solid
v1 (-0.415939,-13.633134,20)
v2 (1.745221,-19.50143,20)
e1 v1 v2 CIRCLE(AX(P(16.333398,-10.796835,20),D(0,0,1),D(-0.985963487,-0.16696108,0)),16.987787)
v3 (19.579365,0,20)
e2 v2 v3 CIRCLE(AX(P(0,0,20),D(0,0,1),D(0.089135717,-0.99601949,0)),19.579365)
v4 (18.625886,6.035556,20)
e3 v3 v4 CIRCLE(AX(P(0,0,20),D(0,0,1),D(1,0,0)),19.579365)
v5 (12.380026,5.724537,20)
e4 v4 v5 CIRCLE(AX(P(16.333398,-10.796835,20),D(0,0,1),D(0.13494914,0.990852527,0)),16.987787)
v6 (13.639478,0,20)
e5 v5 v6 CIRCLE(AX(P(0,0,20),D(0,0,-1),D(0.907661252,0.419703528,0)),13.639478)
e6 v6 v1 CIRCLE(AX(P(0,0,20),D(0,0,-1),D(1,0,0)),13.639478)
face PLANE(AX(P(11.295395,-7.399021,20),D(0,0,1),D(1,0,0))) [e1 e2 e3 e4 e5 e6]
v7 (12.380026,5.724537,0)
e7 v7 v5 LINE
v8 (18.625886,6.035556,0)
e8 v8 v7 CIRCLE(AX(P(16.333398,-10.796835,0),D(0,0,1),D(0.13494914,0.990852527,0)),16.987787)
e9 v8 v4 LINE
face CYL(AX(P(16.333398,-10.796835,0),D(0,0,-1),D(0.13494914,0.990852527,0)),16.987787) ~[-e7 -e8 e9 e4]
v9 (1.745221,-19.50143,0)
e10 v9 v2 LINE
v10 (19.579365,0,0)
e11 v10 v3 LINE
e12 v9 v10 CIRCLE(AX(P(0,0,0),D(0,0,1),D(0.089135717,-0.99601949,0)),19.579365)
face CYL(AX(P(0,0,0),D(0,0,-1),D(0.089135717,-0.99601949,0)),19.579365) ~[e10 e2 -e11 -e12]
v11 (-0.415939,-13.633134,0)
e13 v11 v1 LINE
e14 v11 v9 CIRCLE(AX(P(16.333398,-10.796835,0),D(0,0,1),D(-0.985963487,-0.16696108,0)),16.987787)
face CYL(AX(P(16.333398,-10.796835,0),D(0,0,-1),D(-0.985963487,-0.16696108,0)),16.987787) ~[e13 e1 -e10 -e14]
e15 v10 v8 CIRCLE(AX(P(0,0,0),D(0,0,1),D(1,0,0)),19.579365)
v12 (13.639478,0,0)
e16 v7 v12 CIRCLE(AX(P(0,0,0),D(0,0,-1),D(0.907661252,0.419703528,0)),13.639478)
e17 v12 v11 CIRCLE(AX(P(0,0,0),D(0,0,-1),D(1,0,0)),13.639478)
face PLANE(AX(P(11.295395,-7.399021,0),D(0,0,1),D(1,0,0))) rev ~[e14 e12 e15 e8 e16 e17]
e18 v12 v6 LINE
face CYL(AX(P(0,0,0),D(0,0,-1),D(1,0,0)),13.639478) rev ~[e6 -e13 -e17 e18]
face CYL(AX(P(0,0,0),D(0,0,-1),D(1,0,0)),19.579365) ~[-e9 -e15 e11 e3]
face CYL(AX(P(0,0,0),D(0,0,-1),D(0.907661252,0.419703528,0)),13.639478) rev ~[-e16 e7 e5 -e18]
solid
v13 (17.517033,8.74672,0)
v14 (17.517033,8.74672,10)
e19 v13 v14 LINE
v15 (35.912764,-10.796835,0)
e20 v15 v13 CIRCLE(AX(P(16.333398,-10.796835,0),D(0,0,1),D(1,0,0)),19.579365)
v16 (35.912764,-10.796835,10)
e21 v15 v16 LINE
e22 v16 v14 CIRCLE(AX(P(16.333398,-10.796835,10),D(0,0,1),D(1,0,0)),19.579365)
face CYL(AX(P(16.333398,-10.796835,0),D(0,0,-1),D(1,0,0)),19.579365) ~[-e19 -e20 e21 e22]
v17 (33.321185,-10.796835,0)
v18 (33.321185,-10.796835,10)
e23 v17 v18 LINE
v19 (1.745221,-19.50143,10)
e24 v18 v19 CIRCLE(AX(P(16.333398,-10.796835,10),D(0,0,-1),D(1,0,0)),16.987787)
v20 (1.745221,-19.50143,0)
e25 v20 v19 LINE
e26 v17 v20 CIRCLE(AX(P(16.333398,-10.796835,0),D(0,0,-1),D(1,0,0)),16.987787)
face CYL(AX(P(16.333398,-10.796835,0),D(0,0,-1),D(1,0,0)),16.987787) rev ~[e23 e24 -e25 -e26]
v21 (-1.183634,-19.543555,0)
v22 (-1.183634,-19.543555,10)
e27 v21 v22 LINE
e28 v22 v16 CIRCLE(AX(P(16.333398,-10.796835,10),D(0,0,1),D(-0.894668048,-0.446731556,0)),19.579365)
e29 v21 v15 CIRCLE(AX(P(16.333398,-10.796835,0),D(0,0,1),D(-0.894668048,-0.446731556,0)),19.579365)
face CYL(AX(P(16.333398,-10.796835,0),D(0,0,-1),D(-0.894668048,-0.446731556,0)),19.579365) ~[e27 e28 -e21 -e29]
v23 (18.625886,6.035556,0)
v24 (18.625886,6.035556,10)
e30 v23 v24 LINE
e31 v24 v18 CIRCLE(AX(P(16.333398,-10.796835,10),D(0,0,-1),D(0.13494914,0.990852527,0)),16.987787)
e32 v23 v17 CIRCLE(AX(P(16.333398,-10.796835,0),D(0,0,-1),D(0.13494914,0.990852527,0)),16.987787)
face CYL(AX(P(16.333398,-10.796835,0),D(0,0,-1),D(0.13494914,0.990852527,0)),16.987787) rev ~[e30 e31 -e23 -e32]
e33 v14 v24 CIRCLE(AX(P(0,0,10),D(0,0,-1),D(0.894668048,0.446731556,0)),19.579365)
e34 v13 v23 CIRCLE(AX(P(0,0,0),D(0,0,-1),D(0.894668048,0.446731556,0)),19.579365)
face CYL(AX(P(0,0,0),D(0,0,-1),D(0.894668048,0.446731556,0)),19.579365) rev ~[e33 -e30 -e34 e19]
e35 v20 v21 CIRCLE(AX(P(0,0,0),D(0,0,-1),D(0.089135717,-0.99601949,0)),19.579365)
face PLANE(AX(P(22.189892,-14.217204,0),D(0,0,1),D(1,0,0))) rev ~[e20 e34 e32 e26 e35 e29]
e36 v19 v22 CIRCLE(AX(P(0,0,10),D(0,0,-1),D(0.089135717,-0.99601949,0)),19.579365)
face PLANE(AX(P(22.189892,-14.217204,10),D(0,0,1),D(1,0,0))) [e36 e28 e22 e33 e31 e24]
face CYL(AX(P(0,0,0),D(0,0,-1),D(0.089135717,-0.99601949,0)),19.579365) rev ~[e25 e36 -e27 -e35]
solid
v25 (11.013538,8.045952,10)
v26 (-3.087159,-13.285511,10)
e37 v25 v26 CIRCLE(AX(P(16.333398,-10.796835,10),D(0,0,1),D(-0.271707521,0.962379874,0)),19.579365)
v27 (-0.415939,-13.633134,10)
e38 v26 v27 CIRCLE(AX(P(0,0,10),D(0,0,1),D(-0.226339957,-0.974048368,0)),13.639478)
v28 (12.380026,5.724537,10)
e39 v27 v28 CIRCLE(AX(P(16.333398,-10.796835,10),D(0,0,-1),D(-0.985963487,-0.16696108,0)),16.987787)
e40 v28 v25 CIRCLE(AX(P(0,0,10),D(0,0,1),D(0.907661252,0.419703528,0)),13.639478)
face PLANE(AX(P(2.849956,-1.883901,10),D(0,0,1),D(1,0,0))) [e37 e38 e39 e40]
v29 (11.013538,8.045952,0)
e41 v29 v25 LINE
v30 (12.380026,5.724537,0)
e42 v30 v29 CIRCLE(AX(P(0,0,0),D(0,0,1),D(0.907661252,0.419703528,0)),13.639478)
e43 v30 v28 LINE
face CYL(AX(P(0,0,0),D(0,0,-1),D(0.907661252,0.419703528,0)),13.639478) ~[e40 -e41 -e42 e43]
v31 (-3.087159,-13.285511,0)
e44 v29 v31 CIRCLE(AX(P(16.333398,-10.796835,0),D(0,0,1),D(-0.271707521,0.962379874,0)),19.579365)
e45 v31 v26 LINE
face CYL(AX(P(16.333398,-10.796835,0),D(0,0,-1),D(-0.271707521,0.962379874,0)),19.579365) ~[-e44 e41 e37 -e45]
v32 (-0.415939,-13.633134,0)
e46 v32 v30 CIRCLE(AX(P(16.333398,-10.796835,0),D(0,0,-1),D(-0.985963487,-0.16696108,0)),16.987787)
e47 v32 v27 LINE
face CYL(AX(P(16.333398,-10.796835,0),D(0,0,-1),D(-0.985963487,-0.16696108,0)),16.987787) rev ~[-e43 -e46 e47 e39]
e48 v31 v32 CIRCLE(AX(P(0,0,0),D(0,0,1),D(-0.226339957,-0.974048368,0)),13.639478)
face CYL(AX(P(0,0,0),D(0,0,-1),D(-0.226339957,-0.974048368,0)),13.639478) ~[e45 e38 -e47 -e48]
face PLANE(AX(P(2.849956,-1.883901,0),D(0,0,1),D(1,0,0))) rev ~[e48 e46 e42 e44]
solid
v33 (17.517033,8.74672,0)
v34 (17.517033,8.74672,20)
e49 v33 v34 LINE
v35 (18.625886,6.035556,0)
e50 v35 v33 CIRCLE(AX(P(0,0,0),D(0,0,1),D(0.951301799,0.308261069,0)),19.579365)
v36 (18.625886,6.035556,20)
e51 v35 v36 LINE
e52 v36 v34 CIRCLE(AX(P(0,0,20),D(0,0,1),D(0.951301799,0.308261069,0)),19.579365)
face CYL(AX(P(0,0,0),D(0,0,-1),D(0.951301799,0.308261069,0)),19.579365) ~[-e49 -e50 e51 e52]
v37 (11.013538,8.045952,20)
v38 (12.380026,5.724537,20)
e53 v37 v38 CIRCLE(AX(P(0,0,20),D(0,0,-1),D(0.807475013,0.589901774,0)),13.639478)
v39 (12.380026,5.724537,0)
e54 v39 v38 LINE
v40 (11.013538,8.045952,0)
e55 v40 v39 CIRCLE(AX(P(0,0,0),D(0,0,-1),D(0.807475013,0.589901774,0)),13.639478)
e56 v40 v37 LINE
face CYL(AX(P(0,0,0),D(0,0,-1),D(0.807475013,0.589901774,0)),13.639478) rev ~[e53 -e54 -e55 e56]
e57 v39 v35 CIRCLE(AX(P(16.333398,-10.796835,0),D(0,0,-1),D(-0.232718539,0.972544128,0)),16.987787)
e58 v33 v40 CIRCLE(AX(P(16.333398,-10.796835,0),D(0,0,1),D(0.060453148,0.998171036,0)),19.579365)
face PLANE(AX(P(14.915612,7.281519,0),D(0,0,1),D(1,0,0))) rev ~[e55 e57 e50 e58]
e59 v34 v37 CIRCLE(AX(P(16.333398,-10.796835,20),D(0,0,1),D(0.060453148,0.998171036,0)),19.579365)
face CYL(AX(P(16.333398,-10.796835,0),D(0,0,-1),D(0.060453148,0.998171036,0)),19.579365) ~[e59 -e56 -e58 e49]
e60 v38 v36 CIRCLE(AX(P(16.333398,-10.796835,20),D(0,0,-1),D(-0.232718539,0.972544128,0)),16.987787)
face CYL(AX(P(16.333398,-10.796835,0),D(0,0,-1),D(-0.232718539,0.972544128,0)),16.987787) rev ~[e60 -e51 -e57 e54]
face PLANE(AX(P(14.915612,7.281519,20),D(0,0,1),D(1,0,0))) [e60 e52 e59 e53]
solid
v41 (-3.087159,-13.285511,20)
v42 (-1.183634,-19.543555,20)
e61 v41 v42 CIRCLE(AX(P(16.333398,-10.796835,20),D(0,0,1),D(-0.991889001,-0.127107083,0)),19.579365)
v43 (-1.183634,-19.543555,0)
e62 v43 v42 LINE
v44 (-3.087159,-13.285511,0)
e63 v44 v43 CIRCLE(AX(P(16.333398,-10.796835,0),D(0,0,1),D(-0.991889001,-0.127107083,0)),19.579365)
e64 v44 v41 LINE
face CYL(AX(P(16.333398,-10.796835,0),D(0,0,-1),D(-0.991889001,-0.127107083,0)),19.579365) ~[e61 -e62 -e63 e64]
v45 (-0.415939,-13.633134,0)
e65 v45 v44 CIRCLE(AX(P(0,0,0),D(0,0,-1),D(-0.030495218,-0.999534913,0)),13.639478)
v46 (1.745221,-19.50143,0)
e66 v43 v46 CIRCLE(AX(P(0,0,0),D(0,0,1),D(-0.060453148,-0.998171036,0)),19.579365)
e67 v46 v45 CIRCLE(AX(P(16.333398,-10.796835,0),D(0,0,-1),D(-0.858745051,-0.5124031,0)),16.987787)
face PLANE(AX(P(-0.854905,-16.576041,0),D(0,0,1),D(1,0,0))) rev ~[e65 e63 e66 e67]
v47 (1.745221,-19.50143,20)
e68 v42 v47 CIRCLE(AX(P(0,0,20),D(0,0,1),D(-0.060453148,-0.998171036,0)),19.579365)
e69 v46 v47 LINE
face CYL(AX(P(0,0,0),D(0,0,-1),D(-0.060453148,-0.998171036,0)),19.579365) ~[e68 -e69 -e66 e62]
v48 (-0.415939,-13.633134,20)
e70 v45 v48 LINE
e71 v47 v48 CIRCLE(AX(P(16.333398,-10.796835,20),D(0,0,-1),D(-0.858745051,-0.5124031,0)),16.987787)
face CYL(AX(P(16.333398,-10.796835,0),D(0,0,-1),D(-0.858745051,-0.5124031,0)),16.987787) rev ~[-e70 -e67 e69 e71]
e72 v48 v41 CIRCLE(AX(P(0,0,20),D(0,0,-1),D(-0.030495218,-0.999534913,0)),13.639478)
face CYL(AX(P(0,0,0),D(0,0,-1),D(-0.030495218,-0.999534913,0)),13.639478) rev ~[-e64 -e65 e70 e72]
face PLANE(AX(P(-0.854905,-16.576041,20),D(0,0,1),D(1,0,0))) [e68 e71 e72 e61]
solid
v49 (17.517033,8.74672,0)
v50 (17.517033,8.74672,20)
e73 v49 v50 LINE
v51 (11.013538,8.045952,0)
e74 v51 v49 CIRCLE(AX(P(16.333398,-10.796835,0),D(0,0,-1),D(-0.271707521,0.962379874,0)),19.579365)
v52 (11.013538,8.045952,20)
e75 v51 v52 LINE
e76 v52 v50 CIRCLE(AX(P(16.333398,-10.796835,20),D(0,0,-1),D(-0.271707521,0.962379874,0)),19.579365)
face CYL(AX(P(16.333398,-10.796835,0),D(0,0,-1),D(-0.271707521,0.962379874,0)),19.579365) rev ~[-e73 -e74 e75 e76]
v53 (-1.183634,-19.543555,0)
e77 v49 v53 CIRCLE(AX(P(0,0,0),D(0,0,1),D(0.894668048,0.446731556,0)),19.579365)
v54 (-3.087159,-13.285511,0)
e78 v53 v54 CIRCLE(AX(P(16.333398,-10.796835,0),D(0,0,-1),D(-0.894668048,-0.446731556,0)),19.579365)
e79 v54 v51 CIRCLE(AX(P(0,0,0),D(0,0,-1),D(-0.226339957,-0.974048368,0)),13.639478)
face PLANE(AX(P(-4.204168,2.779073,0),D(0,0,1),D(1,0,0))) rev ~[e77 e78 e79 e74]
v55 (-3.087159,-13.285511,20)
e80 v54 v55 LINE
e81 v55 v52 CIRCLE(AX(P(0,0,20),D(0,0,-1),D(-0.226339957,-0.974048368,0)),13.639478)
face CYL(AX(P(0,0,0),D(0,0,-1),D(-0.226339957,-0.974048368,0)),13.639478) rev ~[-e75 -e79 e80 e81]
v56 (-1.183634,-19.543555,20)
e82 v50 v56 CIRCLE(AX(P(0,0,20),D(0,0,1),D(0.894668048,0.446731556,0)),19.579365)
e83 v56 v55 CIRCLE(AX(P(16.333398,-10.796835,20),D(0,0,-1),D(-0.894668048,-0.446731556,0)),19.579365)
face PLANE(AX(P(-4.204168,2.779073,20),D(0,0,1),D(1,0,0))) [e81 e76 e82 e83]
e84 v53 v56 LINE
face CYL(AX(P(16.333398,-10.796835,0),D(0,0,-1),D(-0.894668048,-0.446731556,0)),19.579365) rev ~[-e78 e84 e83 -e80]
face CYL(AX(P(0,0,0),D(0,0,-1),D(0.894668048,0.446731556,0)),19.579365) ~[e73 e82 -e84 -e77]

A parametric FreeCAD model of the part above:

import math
import FreeCAD as App
import Part
import Sketcher

V = App.Vector

doc = App.newDocument("Part")
params = doc.addObject("Spreadsheet::Sheet", "Params")
for row, (alias, value) in enumerate([
    ("pad1_length", "20 mm"),
    ("pad2_length", "20 mm"),
    ("pad3_length", "20 mm"),
    ("pad4_length", "20 mm"),
    ("pad5_length", "10 mm"),
    ("pad6_length", "10 mm"),
], start=1):
    params.set(f"A{row}", alias)
    params.set(f"B{row}", "=" + value)
    params.setAlias(f"B{row}", alias)

body = doc.addObject("PartDesign::Body", "Body")

# Sketch on XY plane
sketch1 = doc.addObject("Sketcher::SketchObject", "Sketch")
body.addObject(sketch1)
sketch1.AttachmentSupport = (doc.XY_Plane, [""])
sketch1.MapMode = "FlatFace"
sketch1.addGeometry(Part.ArcOfCircle(Part.Circle(V(16, -11, 0), V(0, 0, 1), 20), math.radians(86.53), math.radians(105.77)), False)
sketch1.addGeometry(Part.ArcOfCircle(Part.Circle(V(0, 0, 0), V(0, 0, 1), 20), math.radians(27), math.radians(267)), False)
sketch1.addGeometry(Part.ArcOfCircle(Part.Circle(V(16, -11, 0), V(0, 0, 1), 20), math.radians(-172.7), math.radians(-153.47)), False)
sketch1.addGeometry(Part.ArcOfCircle(Part.Circle(V(0, 0, 0), V(0, 0, 1), 14), math.radians(36), math.radians(257)), False)
sketch1.addConstraint(Sketcher.Constraint("Coincident", 0, 1, 1, 1))
sketch1.addConstraint(Sketcher.Constraint("Coincident", 1, 2, 2, 2))
sketch1.addConstraint(Sketcher.Constraint("Coincident", 2, 1, 3, 2))
sketch1.addConstraint(Sketcher.Constraint("Coincident", 3, 1, 0, 2))
sketch1.addConstraint(Sketcher.Constraint("Coincident", 1, 3, -1, 1))
sketch1.addConstraint(Sketcher.Constraint("Coincident", 3, 3, -1, 1))
sketch1.addConstraint(Sketcher.Constraint("Coincident", 2, 3, 0, 3))
sketch1.addConstraint(Sketcher.Constraint("Equal", 0, 1))
sketch1.addConstraint(Sketcher.Constraint("Equal", 1, 2))
sketch1.addConstraint(Sketcher.Constraint("Radius", 0, 19.579365))
sketch1.addConstraint(Sketcher.Constraint("Radius", 3, 13.639478))
sketch1.addConstraint(Sketcher.Constraint("DistanceX", -1, 1, 0, 3, 16.333398))
sketch1.addConstraint(Sketcher.Constraint("DistanceY", -1, 1, 0, 1, 8.74672))
pad1 = doc.addObject("PartDesign::Pad", "Pad")
body.addObject(pad1)
pad1.Profile = sketch1
pad1.setExpression("Length", "Params.pad1_length")
body2 = doc.addObject("PartDesign::Body", "Body001")

# Sketch on XY plane
sketch2 = doc.addObject("Sketcher::SketchObject", "Sketch001")
body2.addObject(sketch2)
sketch2.AttachmentSupport = (doc.getObject("XY_Plane001"), [""])
sketch2.MapMode = "FlatFace"
sketch2.addGeometry(Part.ArcOfCircle(Part.Circle(V(0, 0, 0), V(0, 0, 1), 20), math.radians(-85), math.radians(0)), False)
sketch2.addGeometry(Part.ArcOfCircle(Part.Circle(V(0, 0, 0), V(0, 0, 1), 20), math.radians(0), math.radians(17.95)), False)
sketch2.addGeometry(Part.ArcOfCircle(Part.Circle(V(16, -11, 0), V(0, 0, 1), 17), math.radians(82), math.radians(103)), False)
sketch2.addGeometry(Part.ArcOfCircle(Part.Circle(V(0, 0, 0), V(0, 0, 1), 14), math.radians(0), math.radians(25)), False)
sketch2.addGeometry(Part.ArcOfCircle(Part.Circle(V(0, 0, 0), V(0, 0, 1), 14), math.radians(-92), math.radians(0)), False)
sketch2.addGeometry(Part.ArcOfCircle(Part.Circle(V(16, -11, 0), V(0, 0, 1), 17), math.radians(-170), math.radians(-149)), False)
sketch2.addConstraint(Sketcher.Constraint("Tangent", 0, 2, 1, 1))
sketch2.addConstraint(Sketcher.Constraint("Coincident", 1, 2, 2, 1))
sketch2.addConstraint(Sketcher.Constraint("Coincident", 2, 2, 3, 2))
sketch2.addConstraint(Sketcher.Constraint("Tangent", 3, 1, 4, 2))
sketch2.addConstraint(Sketcher.Constraint("Coincident", 4, 1, 5, 1))
sketch2.addConstraint(Sketcher.Constraint("Coincident", 5, 2, 0, 1))
sketch2.addConstraint(Sketcher.Constraint("Coincident", 0, 3, -1, 1))
sketch2.addConstraint(Sketcher.Constraint("Coincident", 3, 3, -1, 1))
sketch2.addConstraint(Sketcher.Constraint("Coincident", 5, 3, 2, 3))
sketch2.addConstraint(Sketcher.Constraint("Equal", 0, 1))
sketch2.addConstraint(Sketcher.Constraint("Equal", 3, 4))
sketch2.addConstraint(Sketcher.Constraint("Equal", 2, 5))
sketch2.addConstraint(Sketcher.Constraint("PointOnObject", 0, 2, -1))
sketch2.addConstraint(Sketcher.Constraint("PointOnObject", 3, 1, -1))
sketch2.addConstraint(Sketcher.Constraint("Radius", 0, 19.579365))
sketch2.addConstraint(Sketcher.Constraint("Radius", 2, 16.987787))
sketch2.addConstraint(Sketcher.Constraint("Radius", 3, 13.639478))
sketch2.addConstraint(Sketcher.Constraint("DistanceX", -1, 1, 2, 3, 16.333398))
sketch2.addConstraint(Sketcher.Constraint("DistanceY", 4, 1, 2, 3, 2.836299))
pad2 = doc.addObject("PartDesign::Pad", "Pad001")
body2.addObject(pad2)
pad2.Profile = sketch2
pad2.setExpression("Length", "Params.pad2_length")
body3 = doc.addObject("PartDesign::Body", "Body002")

# Sketch on XY plane
sketch3 = doc.addObject("Sketcher::SketchObject", "Sketch002")
body3.addObject(sketch3)
sketch3.AttachmentSupport = (doc.getObject("XY_Plane002"), [""])
sketch3.MapMode = "FlatFace"
sketch3.addGeometry(Part.ArcOfCircle(Part.Circle(V(0, 0, 0), V(0, 0, 1), 19.6), math.radians(-93.47), math.radians(-84.89)), False)
sketch3.addGeometry(Part.ArcOfCircle(Part.Circle(V(16.3, -10.8, 0), V(0, 0, 1), 17), math.radians(-170), math.radians(-149)), False)
sketch3.addGeometry(Part.ArcOfCircle(Part.Circle(V(0, 0, 0), V(0, 0, 1), 13.6), math.radians(-103.08), math.radians(-91.75)), False)
sketch3.addGeometry(Part.ArcOfCircle(Part.Circle(V(16.3, -10.8, 0), V(0, 0, 1), 19.6), math.radians(-172.7), math.radians(-153.47)), False)
sketch3.addConstraint(Sketcher.Constraint("Coincident", 0, 2, 1, 2))
sketch3.addConstraint(Sketcher.Constraint("Coincident", 1, 1, 2, 2))
sketch3.addConstraint(Sketcher.Constraint("Coincident", 2, 1, 3, 1))
sketch3.addConstraint(Sketcher.Constraint("Coincident", 3, 2, 0, 1))
sketch3.addConstraint(Sketcher.Constraint("Coincident", 0, 3, -1, 1))
sketch3.addConstraint(Sketcher.Constraint("Coincident", 2, 3, -1, 1))
sketch3.addConstraint(Sketcher.Constraint("Coincident", 3, 3, 1, 3))
sketch3.addConstraint(Sketcher.Constraint("Equal", 0, 3))
sketch3.addConstraint(Sketcher.Constraint("Radius", 0, 19.579365))
sketch3.addConstraint(Sketcher.Constraint("Radius", 1, 16.987787))
sketch3.addConstraint(Sketcher.Constraint("Radius", 2, 13.639478))
sketch3.addConstraint(Sketcher.Constraint("DistanceX", -1, 1, 1, 3, 16.333398))
sketch3.addConstraint(Sketcher.Constraint("DistanceY", 1, 1, 3, 3, 2.836299))
pad3 = doc.addObject("PartDesign::Pad", "Pad002")
body3.addObject(pad3)
pad3.Profile = sketch3
pad3.setExpression("Length", "Params.pad3_length")
body4 = doc.addObject("PartDesign::Body", "Body003")

# Sketch on XY plane
sketch4 = doc.addObject("Sketcher::SketchObject", "Sketch003")
body4.addObject(sketch4)
sketch4.AttachmentSupport = (doc.getObject("XY_Plane003"), [""])
sketch4.MapMode = "FlatFace"
sketch4.addGeometry(Part.ArcOfCircle(Part.Circle(V(16.3, -10.8, 0), V(0, 0, 1), 17), math.radians(82), math.radians(103)), False)
sketch4.addGeometry(Part.ArcOfCircle(Part.Circle(V(0, 0, 0), V(0, 0, 1), 19.6), math.radians(17.95), math.radians(26.53)), False)
sketch4.addGeometry(Part.ArcOfCircle(Part.Circle(V(16.3, -10.8, 0), V(0, 0, 1), 19.6), math.radians(86.53), math.radians(105.77)), False)
sketch4.addGeometry(Part.ArcOfCircle(Part.Circle(V(0, 0, 0), V(0, 0, 1), 13.6), math.radians(24.82), math.radians(36.15)), False)
sketch4.addConstraint(Sketcher.Constraint("Coincident", 0, 1, 1, 1))
sketch4.addConstraint(Sketcher.Constraint("Coincident", 1, 2, 2, 1))
sketch4.addConstraint(Sketcher.Constraint("Coincident", 2, 2, 3, 2))
sketch4.addConstraint(Sketcher.Constraint("Coincident", 3, 1, 0, 2))
sketch4.addConstraint(Sketcher.Constraint("Coincident", 1, 3, -1, 1))
sketch4.addConstraint(Sketcher.Constraint("Coincident", 3, 3, -1, 1))
sketch4.addConstraint(Sketcher.Constraint("Coincident", 2, 3, 0, 3))
sketch4.addConstraint(Sketcher.Constraint("Equal", 1, 2))
sketch4.addConstraint(Sketcher.Constraint("Radius", 0, 16.987787))
sketch4.addConstraint(Sketcher.Constraint("Radius", 1, 19.579365))
sketch4.addConstraint(Sketcher.Constraint("Radius", 3, 13.639478))
sketch4.addConstraint(Sketcher.Constraint("DistanceX", -1, 1, 0, 3, 16.333398))
sketch4.addConstraint(Sketcher.Constraint("DistanceY", -1, 1, 1, 2, 8.74672))
pad4 = doc.addObject("PartDesign::Pad", "Pad003")
body4.addObject(pad4)
pad4.Profile = sketch4
pad4.setExpression("Length", "Params.pad4_length")
body5 = doc.addObject("PartDesign::Body", "Body004")

# Sketch on XY plane
sketch5 = doc.addObject("Sketcher::SketchObject", "Sketch004")
body5.addObject(sketch5)
sketch5.AttachmentSupport = (doc.getObject("XY_Plane004"), [""])
sketch5.MapMode = "FlatFace"
sketch5.addGeometry(Part.ArcOfCircle(Part.Circle(V(0, 0, 0), V(0, 0, 1), 19.6), math.radians(17.95), math.radians(26.53)), False)
sketch5.addGeometry(Part.ArcOfCircle(Part.Circle(V(16.3, -10.8, 0), V(0, 0, 1), 17), math.radians(0), math.radians(82)), False)
sketch5.addGeometry(Part.ArcOfCircle(Part.Circle(V(16.3, -10.8, 0), V(0, 0, 1), 17), math.radians(-149), math.radians(0)), False)
sketch5.addGeometry(Part.ArcOfCircle(Part.Circle(V(0, 0, 0), V(0, 0, 1), 19.6), math.radians(-93.47), math.radians(-84.89)), False)
sketch5.addGeometry(Part.ArcOfCircle(Part.Circle(V(16.3, -10.8, 0), V(0, 0, 1), 19.6), math.radians(-153), math.radians(0)), False)
sketch5.addGeometry(Part.ArcOfCircle(Part.Circle(V(16.3, -10.8, 0), V(0, 0, 1), 19.6), math.radians(0), math.radians(87)), False)
sketch5.addConstraint(Sketcher.Constraint("Coincident", 0, 1, 1, 2))
sketch5.addConstraint(Sketcher.Constraint("Tangent", 1, 1, 2, 2))
sketch5.addConstraint(Sketcher.Constraint("Coincident", 2, 1, 3, 2))
sketch5.addConstraint(Sketcher.Constraint("Coincident", 3, 1, 4, 1))
sketch5.addConstraint(Sketcher.Constraint("Tangent", 4, 2, 5, 1))
sketch5.addConstraint(Sketcher.Constraint("Coincident", 5, 2, 0, 2))
sketch5.addConstraint(Sketcher.Constraint("Coincident", 0, 3, -1, 1))
sketch5.addConstraint(Sketcher.Constraint("Coincident", 3, 3, -1, 1))
sketch5.addConstraint(Sketcher.Constraint("Coincident", 4, 3, 1, 3))
sketch5.addConstraint(Sketcher.Constraint("Equal", 1, 2))
sketch5.addConstraint(Sketcher.Constraint("Equal", 0, 3))
sketch5.addConstraint(Sketcher.Constraint("Equal", 3, 4))
sketch5.addConstraint(Sketcher.Constraint("Equal", 4, 5))
sketch5.addConstraint(Sketcher.Constraint("Horizontal", 5, 3, 1, 1))
sketch5.addConstraint(Sketcher.Constraint("Horizontal", 1, 1, 4, 2))
sketch5.addConstraint(Sketcher.Constraint("Radius", 0, 19.579365))
sketch5.addConstraint(Sketcher.Constraint("Radius", 1, 16.987787))
sketch5.addConstraint(Sketcher.Constraint("DistanceX", -1, 1, 1, 3, 16.333398))
sketch5.addConstraint(Sketcher.Constraint("DistanceX", 0, 1, 1, 1, 14.695299))
pad5 = doc.addObject("PartDesign::Pad", "Pad004")
body5.addObject(pad5)
pad5.Profile = sketch5
pad5.setExpression("Length", "Params.pad5_length")
body6 = doc.addObject("PartDesign::Body", "Body005")

# Sketch on XY plane
sketch6 = doc.addObject("Sketcher::SketchObject", "Sketch005")
body6.addObject(sketch6)
sketch6.AttachmentSupport = (doc.getObject("XY_Plane005"), [""])
sketch6.MapMode = "FlatFace"
sketch6.addGeometry(Part.ArcOfCircle(Part.Circle(V(16.3, -10.8, 0), V(0, 0, 1), 17), math.radians(103), math.radians(190)), False)
sketch6.addGeometry(Part.ArcOfCircle(Part.Circle(V(0, 0, 0), V(0, 0, 1), 13.6), math.radians(24.82), math.radians(36.15)), False)
sketch6.addGeometry(Part.ArcOfCircle(Part.Circle(V(16.3, -10.8, 0), V(0, 0, 1), 19.6), math.radians(106), math.radians(187)), False)
sketch6.addGeometry(Part.ArcOfCircle(Part.Circle(V(0, 0, 0), V(0, 0, 1), 13.6), math.radians(-103.08), math.radians(-91.75)), False)
sketch6.addConstraint(Sketcher.Constraint("Coincident", 0, 1, 1, 1))
sketch6.addConstraint(Sketcher.Constraint("Coincident", 1, 2, 2, 1))
sketch6.addConstraint(Sketcher.Constraint("Coincident", 2, 2, 3, 1))
sketch6.addConstraint(Sketcher.Constraint("Coincident", 3, 2, 0, 2))
sketch6.addConstraint(Sketcher.Constraint("Coincident", 1, 3, -1, 1))
sketch6.addConstraint(Sketcher.Constraint("Coincident", 3, 3, -1, 1))
sketch6.addConstraint(Sketcher.Constraint("Coincident", 2, 3, 0, 3))
sketch6.addConstraint(Sketcher.Constraint("Equal", 1, 3))
sketch6.addConstraint(Sketcher.Constraint("Radius", 0, 16.987787))
sketch6.addConstraint(Sketcher.Constraint("Radius", 1, 13.639478))
sketch6.addConstraint(Sketcher.Constraint("Radius", 2, 19.579365))
sketch6.addConstraint(Sketcher.Constraint("DistanceX", -1, 1, 0, 3, 16.333398))
sketch6.addConstraint(Sketcher.Constraint("DistanceY", 3, 2, 0, 3, 2.836299))
pad6 = doc.addObject("PartDesign::Pad", "Pad005")
body6.addObject(pad6)
pad6.Profile = sketch6
pad6.setExpression("Length", "Params.pad6_length")

doc.recompute()
